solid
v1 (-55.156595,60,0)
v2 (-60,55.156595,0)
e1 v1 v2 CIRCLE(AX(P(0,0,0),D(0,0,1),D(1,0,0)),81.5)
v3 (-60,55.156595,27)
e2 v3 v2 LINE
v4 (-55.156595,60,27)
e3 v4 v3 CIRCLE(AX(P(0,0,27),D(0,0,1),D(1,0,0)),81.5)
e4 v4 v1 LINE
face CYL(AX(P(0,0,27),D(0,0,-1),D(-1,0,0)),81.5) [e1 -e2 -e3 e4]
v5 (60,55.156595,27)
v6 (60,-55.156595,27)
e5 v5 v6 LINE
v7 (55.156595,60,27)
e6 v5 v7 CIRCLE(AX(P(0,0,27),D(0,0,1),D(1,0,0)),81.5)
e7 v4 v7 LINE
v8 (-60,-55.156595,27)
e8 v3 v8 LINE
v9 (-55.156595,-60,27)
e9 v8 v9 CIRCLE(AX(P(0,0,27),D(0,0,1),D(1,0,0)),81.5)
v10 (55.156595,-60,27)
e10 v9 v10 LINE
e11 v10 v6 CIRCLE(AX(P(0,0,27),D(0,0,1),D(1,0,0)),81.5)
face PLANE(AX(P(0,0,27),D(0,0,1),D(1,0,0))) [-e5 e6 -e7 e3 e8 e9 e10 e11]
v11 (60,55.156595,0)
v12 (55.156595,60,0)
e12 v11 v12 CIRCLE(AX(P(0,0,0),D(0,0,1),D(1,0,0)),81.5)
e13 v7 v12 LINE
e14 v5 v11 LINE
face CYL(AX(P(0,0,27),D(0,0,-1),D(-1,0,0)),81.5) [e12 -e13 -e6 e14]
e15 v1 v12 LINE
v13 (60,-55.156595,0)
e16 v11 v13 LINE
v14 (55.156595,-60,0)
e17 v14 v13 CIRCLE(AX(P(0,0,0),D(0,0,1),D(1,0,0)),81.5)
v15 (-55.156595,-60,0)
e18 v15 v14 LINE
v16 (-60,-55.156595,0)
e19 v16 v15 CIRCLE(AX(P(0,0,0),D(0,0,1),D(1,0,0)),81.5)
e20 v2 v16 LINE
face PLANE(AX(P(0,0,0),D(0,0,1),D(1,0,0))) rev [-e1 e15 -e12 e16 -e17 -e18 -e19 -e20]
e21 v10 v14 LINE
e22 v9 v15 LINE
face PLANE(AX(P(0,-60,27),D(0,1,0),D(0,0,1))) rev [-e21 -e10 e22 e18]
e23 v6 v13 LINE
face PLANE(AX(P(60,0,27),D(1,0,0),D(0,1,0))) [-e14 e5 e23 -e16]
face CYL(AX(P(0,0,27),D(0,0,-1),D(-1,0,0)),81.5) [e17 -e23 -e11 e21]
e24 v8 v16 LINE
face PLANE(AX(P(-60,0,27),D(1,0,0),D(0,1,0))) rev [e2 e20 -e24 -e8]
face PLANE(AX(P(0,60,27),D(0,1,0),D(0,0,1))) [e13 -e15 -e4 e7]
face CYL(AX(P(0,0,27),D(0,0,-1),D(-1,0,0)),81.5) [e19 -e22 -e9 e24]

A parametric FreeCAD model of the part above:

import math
import FreeCAD as App
import Part
import Sketcher

V = App.Vector

doc = App.newDocument("Part")
params = doc.addObject("Spreadsheet::Sheet", "Params")
for row, (alias, value) in enumerate([
    ("sketch1_radius", "81.5 mm"),
    ("pad1_length", "27 mm"),
], start=1):
    params.set(f"A{row}", alias)
    params.set(f"B{row}", "=" + value)
    params.setAlias(f"B{row}", alias)

body = doc.addObject("PartDesign::Body", "Body")

# Sketch on XY plane
sketch1 = body.newObject("Sketcher::SketchObject", "Sketch")
sketch1.AttachmentSupport = (doc.getObject("XY_Plane"), [""])
sketch1.MapMode = "FlatFace"
sketch1.addGeometry(Part.LineSegment(V(55, 60, 0), V(-55, 60, 0)), False)
sketch1.addGeometry(Part.ArcOfCircle(Part.Circle(V(0, 0, 0), V(0, 0, 1), 81), math.radians(132.59), math.radians(137.41)), False)
sketch1.addGeometry(Part.LineSegment(V(-60, 55, 0), V(-60, -55, 0)), False)
sketch1.addGeometry(Part.ArcOfCircle(Part.Circle(V(0, 0, 0), V(0, 0, 1), 81), math.radians(-137.41), math.radians(-132.59)), False)
sketch1.addGeometry(Part.LineSegment(V(-55, -60, 0), V(55, -60, 0)), False)
sketch1.addGeometry(Part.ArcOfCircle(Part.Circle(V(0, 0, 0), V(0, 0, 1), 81), math.radians(-47.41), math.radians(-42.59)), False)
sketch1.addGeometry(Part.LineSegment(V(60, -55, 0), V(60, 55, 0)), False)
sketch1.addGeometry(Part.ArcOfCircle(Part.Circle(V(0, 0, 0), V(0, 0, 1), 81), math.radians(42.59), math.radians(47.41)), False)
sketch1.addConstraint(Sketcher.Constraint("Coincident", 0, 2, 1, 1))
sketch1.addConstraint(Sketcher.Constraint("Coincident", 1, 2, 2, 1))
sketch1.addConstraint(Sketcher.Constraint("Coincident", 2, 2, 3, 1))
sketch1.addConstraint(Sketcher.Constraint("Coincident", 3, 2, 4, 1))
sketch1.addConstraint(Sketcher.Constraint("Coincident", 4, 2, 5, 1))
sketch1.addConstraint(Sketcher.Constraint("Coincident", 5, 2, 6, 1))
sketch1.addConstraint(Sketcher.Constraint("Coincident", 6, 2, 7, 1))
sketch1.addConstraint(Sketcher.Constraint("Coincident", 7, 2, 0, 1))
sketch1.addConstraint(Sketcher.Constraint("Horizontal", 0))
sketch1.addConstraint(Sketcher.Constraint("Vertical", 2))
sketch1.addConstraint(Sketcher.Constraint("Horizontal", 4))
sketch1.addConstraint(Sketcher.Constraint("Vertical", 6))
sketch1.addConstraint(Sketcher.Constraint("Coincident", 1, 3, -1, 1))
sketch1.addConstraint(Sketcher.Constraint("Coincident", 3, 3, -1, 1))
sketch1.addConstraint(Sketcher.Constraint("Coincident", 5, 3, -1, 1))
sketch1.addConstraint(Sketcher.Constraint("Coincident", 7, 3, -1, 1))
sketch1.addConstraint(Sketcher.Constraint("Equal", 1, 3))
sketch1.addConstraint(Sketcher.Constraint("Equal", 3, 5))
sketch1.addConstraint(Sketcher.Constraint("Equal", 5, 7))
sketch1.addConstraint(Sketcher.Constraint("Horizontal", 2, 2, 5, 2))
sketch1.addConstraint(Sketcher.Constraint("Vertical", 0, 2, 3, 2))
sketch1.addConstraint(Sketcher.Constraint("Equal", 4, 2))
sketch1.addConstraint(Sketcher.Constraint("Radius", 1, 81.5))
sketch1.addConstraint(Sketcher.Constraint("DistanceY", -1, 1, 0, 2, 60.0))
sketch1.setExpression("Constraints[22]", "Params.sketch1_radius")
pad1 = body.newObject("PartDesign::Pad", "Pad")
pad1.Profile = sketch1
pad1.setExpression("Length", "Params.pad1_length")

doc.recompute()
